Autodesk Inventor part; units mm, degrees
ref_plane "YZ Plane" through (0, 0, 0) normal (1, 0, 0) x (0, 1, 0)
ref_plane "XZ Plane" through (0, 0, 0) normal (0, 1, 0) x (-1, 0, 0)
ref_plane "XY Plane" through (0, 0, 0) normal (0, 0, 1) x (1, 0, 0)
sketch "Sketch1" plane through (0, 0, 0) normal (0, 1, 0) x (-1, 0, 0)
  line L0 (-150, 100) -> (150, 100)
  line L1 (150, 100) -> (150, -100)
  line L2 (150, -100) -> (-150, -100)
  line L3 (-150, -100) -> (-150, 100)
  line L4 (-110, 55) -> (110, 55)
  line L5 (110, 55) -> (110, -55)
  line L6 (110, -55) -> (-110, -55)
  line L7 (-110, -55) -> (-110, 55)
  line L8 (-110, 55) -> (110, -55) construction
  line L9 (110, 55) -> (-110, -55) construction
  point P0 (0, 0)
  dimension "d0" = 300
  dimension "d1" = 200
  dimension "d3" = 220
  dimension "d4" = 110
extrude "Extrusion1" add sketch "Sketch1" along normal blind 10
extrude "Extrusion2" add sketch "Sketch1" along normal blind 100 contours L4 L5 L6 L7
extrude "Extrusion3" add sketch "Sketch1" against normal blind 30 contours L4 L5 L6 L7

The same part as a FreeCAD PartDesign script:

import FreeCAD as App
import Part
import Sketcher


def add_polygon(sketch, points):
    """Adds a closed chain of lines whose ends are joined by coincident constraints."""
    first, n = sketch.GeometryCount, len(points)
    for a, b in zip(points, points[1:] + points[:1]):
        sketch.addGeometry(Part.LineSegment(App.Vector(*a, 0), App.Vector(*b, 0)), False)
    for i in range(n):
        sketch.addConstraint(Sketcher.Constraint("Coincident", first + i, 2, first + (i + 1) % n, 1))

doc = App.newDocument("Part")
body = doc.addObject("PartDesign::Body", "Body")

# Sketch on XZ plane
sketch1 = body.newObject("Sketcher::SketchObject", "Sketch")
sketch1.AttachmentSupport = (doc.getObject("XZ_Plane"), [""])
sketch1.MapMode = "FlatFace"
add_polygon(sketch1, [(-150, 100), (150, 100), (150, -100), (-150, -100)])  # lines 0-3
add_polygon(sketch1, [(110, -55), (110, 55), (-110, 55), (-110, -55)])  # lines 4-7
sketch1.addConstraint([
    Sketcher.Constraint("Horizontal", 0),
    Sketcher.Constraint("Vertical", 1),
    Sketcher.Constraint("Horizontal", 2),
    Sketcher.Constraint("Vertical", 3),
    Sketcher.Constraint("Vertical", 4),
    Sketcher.Constraint("Horizontal", 5),
    Sketcher.Constraint("Vertical", 6),
    Sketcher.Constraint("Horizontal", 7),
    Sketcher.Constraint("Symmetric", 0, 2, 2, 2, -1, 1),
    Sketcher.Constraint("Symmetric", 4, 2, 6, 2, -1, 1),
    Sketcher.Constraint("DistanceX", 0, 1, 0, 2, 300.0),
    Sketcher.Constraint("DistanceX", 5, 2, 5, 1, 220.0),
    Sketcher.Constraint("DistanceY", 1, 2, 1, 1, 200.0),
    Sketcher.Constraint("DistanceY", 4, 1, 4, 2, 110.0),
])
pad1 = body.newObject("PartDesign::Pad", "Pad")
pad1.Profile = sketch1
pad1.Length = 10
pad1.Reversed = True

# Sketch on XZ plane
sketch2 = body.newObject("Sketcher::SketchObject", "Sketch001")
sketch2.AttachmentSupport = (doc.getObject("XZ_Plane"), [""])
sketch2.MapMode = "FlatFace"
add_polygon(sketch2, [(-110, 55), (110, 55), (110, -55), (-110, -55)])  # lines 0-3
sketch2.addConstraint([
    Sketcher.Constraint("Horizontal", 0),
    Sketcher.Constraint("Vertical", 1),
    Sketcher.Constraint("Horizontal", 2),
    Sketcher.Constraint("Vertical", 3),
    Sketcher.Constraint("Symmetric", 0, 2, 2, 2, -1, 1),
    Sketcher.Constraint("DistanceX", 0, 1, 0, 2, 220.0),
    Sketcher.Constraint("DistanceY", 1, 2, 1, 1, 110.0),
])
pad2 = body.newObject("PartDesign::Pad", "Pad001")
pad2.Profile = sketch2
pad2.Length = 100
pad2.Reversed = True

# Sketch on XZ plane
sketch3 = body.newObject("Sketcher::SketchObject", "Sketch002")
sketch3.AttachmentSupport = (doc.getObject("XZ_Plane"), [""])
sketch3.MapMode = "FlatFace"
add_polygon(sketch3, [(-110, 55), (110, 55), (110, -55), (-110, -55)])  # lines 0-3
sketch3.addConstraint([
    Sketcher.Constraint("Horizontal", 0),
    Sketcher.Constraint("Vertical", 1),
    Sketcher.Constraint("Horizontal", 2),
    Sketcher.Constraint("Vertical", 3),
    Sketcher.Constraint("Symmetric", 0, 2, 2, 2, -1, 1),
    Sketcher.Constraint("DistanceX", 0, 1, 0, 2, 220.0),
    Sketcher.Constraint("DistanceY", 1, 2, 1, 1, 110.0),
])
pad3 = body.newObject("PartDesign::Pad", "Pad002")
pad3.Profile = sketch3
pad3.Length = 30

doc.recompute()
